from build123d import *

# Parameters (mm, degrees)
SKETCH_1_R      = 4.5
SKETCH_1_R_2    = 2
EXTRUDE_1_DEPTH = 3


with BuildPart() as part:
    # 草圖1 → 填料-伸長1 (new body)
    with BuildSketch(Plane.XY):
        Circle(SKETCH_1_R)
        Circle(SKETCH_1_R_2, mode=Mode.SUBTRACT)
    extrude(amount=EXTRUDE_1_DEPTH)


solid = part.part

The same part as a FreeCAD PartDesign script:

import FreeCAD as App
import Part
import Sketcher

V = App.Vector

doc = App.newDocument("Part")
body = doc.addObject("PartDesign::Body", "Body")

# Sketch on XY plane
sketch1 = body.newObject("Sketcher::SketchObject", "Sketch")
sketch1.AttachmentSupport = (doc.getObject("XY_Plane"), [""])
sketch1.MapMode = "FlatFace"
sketch1.addGeometry([
    Part.Circle(V(0, 0, 0), V(0, 0, 1), 4.5),
    Part.Circle(V(0, 0, 0), V(0, 0, 1), 2),
], False)
sketch1.addConstraint([
    Sketcher.Constraint("Coincident", 0, 3, -1, 1),
    Sketcher.Constraint("Coincident", 1, 3, -1, 1),
    Sketcher.Constraint("Diameter", 0, 9.0),
    Sketcher.Constraint("Diameter", 1, 4.0),
])
pad1 = body.newObject("PartDesign::Pad", "Pad")
pad1.Profile = sketch1
pad1.Length = 3

doc.recompute()
